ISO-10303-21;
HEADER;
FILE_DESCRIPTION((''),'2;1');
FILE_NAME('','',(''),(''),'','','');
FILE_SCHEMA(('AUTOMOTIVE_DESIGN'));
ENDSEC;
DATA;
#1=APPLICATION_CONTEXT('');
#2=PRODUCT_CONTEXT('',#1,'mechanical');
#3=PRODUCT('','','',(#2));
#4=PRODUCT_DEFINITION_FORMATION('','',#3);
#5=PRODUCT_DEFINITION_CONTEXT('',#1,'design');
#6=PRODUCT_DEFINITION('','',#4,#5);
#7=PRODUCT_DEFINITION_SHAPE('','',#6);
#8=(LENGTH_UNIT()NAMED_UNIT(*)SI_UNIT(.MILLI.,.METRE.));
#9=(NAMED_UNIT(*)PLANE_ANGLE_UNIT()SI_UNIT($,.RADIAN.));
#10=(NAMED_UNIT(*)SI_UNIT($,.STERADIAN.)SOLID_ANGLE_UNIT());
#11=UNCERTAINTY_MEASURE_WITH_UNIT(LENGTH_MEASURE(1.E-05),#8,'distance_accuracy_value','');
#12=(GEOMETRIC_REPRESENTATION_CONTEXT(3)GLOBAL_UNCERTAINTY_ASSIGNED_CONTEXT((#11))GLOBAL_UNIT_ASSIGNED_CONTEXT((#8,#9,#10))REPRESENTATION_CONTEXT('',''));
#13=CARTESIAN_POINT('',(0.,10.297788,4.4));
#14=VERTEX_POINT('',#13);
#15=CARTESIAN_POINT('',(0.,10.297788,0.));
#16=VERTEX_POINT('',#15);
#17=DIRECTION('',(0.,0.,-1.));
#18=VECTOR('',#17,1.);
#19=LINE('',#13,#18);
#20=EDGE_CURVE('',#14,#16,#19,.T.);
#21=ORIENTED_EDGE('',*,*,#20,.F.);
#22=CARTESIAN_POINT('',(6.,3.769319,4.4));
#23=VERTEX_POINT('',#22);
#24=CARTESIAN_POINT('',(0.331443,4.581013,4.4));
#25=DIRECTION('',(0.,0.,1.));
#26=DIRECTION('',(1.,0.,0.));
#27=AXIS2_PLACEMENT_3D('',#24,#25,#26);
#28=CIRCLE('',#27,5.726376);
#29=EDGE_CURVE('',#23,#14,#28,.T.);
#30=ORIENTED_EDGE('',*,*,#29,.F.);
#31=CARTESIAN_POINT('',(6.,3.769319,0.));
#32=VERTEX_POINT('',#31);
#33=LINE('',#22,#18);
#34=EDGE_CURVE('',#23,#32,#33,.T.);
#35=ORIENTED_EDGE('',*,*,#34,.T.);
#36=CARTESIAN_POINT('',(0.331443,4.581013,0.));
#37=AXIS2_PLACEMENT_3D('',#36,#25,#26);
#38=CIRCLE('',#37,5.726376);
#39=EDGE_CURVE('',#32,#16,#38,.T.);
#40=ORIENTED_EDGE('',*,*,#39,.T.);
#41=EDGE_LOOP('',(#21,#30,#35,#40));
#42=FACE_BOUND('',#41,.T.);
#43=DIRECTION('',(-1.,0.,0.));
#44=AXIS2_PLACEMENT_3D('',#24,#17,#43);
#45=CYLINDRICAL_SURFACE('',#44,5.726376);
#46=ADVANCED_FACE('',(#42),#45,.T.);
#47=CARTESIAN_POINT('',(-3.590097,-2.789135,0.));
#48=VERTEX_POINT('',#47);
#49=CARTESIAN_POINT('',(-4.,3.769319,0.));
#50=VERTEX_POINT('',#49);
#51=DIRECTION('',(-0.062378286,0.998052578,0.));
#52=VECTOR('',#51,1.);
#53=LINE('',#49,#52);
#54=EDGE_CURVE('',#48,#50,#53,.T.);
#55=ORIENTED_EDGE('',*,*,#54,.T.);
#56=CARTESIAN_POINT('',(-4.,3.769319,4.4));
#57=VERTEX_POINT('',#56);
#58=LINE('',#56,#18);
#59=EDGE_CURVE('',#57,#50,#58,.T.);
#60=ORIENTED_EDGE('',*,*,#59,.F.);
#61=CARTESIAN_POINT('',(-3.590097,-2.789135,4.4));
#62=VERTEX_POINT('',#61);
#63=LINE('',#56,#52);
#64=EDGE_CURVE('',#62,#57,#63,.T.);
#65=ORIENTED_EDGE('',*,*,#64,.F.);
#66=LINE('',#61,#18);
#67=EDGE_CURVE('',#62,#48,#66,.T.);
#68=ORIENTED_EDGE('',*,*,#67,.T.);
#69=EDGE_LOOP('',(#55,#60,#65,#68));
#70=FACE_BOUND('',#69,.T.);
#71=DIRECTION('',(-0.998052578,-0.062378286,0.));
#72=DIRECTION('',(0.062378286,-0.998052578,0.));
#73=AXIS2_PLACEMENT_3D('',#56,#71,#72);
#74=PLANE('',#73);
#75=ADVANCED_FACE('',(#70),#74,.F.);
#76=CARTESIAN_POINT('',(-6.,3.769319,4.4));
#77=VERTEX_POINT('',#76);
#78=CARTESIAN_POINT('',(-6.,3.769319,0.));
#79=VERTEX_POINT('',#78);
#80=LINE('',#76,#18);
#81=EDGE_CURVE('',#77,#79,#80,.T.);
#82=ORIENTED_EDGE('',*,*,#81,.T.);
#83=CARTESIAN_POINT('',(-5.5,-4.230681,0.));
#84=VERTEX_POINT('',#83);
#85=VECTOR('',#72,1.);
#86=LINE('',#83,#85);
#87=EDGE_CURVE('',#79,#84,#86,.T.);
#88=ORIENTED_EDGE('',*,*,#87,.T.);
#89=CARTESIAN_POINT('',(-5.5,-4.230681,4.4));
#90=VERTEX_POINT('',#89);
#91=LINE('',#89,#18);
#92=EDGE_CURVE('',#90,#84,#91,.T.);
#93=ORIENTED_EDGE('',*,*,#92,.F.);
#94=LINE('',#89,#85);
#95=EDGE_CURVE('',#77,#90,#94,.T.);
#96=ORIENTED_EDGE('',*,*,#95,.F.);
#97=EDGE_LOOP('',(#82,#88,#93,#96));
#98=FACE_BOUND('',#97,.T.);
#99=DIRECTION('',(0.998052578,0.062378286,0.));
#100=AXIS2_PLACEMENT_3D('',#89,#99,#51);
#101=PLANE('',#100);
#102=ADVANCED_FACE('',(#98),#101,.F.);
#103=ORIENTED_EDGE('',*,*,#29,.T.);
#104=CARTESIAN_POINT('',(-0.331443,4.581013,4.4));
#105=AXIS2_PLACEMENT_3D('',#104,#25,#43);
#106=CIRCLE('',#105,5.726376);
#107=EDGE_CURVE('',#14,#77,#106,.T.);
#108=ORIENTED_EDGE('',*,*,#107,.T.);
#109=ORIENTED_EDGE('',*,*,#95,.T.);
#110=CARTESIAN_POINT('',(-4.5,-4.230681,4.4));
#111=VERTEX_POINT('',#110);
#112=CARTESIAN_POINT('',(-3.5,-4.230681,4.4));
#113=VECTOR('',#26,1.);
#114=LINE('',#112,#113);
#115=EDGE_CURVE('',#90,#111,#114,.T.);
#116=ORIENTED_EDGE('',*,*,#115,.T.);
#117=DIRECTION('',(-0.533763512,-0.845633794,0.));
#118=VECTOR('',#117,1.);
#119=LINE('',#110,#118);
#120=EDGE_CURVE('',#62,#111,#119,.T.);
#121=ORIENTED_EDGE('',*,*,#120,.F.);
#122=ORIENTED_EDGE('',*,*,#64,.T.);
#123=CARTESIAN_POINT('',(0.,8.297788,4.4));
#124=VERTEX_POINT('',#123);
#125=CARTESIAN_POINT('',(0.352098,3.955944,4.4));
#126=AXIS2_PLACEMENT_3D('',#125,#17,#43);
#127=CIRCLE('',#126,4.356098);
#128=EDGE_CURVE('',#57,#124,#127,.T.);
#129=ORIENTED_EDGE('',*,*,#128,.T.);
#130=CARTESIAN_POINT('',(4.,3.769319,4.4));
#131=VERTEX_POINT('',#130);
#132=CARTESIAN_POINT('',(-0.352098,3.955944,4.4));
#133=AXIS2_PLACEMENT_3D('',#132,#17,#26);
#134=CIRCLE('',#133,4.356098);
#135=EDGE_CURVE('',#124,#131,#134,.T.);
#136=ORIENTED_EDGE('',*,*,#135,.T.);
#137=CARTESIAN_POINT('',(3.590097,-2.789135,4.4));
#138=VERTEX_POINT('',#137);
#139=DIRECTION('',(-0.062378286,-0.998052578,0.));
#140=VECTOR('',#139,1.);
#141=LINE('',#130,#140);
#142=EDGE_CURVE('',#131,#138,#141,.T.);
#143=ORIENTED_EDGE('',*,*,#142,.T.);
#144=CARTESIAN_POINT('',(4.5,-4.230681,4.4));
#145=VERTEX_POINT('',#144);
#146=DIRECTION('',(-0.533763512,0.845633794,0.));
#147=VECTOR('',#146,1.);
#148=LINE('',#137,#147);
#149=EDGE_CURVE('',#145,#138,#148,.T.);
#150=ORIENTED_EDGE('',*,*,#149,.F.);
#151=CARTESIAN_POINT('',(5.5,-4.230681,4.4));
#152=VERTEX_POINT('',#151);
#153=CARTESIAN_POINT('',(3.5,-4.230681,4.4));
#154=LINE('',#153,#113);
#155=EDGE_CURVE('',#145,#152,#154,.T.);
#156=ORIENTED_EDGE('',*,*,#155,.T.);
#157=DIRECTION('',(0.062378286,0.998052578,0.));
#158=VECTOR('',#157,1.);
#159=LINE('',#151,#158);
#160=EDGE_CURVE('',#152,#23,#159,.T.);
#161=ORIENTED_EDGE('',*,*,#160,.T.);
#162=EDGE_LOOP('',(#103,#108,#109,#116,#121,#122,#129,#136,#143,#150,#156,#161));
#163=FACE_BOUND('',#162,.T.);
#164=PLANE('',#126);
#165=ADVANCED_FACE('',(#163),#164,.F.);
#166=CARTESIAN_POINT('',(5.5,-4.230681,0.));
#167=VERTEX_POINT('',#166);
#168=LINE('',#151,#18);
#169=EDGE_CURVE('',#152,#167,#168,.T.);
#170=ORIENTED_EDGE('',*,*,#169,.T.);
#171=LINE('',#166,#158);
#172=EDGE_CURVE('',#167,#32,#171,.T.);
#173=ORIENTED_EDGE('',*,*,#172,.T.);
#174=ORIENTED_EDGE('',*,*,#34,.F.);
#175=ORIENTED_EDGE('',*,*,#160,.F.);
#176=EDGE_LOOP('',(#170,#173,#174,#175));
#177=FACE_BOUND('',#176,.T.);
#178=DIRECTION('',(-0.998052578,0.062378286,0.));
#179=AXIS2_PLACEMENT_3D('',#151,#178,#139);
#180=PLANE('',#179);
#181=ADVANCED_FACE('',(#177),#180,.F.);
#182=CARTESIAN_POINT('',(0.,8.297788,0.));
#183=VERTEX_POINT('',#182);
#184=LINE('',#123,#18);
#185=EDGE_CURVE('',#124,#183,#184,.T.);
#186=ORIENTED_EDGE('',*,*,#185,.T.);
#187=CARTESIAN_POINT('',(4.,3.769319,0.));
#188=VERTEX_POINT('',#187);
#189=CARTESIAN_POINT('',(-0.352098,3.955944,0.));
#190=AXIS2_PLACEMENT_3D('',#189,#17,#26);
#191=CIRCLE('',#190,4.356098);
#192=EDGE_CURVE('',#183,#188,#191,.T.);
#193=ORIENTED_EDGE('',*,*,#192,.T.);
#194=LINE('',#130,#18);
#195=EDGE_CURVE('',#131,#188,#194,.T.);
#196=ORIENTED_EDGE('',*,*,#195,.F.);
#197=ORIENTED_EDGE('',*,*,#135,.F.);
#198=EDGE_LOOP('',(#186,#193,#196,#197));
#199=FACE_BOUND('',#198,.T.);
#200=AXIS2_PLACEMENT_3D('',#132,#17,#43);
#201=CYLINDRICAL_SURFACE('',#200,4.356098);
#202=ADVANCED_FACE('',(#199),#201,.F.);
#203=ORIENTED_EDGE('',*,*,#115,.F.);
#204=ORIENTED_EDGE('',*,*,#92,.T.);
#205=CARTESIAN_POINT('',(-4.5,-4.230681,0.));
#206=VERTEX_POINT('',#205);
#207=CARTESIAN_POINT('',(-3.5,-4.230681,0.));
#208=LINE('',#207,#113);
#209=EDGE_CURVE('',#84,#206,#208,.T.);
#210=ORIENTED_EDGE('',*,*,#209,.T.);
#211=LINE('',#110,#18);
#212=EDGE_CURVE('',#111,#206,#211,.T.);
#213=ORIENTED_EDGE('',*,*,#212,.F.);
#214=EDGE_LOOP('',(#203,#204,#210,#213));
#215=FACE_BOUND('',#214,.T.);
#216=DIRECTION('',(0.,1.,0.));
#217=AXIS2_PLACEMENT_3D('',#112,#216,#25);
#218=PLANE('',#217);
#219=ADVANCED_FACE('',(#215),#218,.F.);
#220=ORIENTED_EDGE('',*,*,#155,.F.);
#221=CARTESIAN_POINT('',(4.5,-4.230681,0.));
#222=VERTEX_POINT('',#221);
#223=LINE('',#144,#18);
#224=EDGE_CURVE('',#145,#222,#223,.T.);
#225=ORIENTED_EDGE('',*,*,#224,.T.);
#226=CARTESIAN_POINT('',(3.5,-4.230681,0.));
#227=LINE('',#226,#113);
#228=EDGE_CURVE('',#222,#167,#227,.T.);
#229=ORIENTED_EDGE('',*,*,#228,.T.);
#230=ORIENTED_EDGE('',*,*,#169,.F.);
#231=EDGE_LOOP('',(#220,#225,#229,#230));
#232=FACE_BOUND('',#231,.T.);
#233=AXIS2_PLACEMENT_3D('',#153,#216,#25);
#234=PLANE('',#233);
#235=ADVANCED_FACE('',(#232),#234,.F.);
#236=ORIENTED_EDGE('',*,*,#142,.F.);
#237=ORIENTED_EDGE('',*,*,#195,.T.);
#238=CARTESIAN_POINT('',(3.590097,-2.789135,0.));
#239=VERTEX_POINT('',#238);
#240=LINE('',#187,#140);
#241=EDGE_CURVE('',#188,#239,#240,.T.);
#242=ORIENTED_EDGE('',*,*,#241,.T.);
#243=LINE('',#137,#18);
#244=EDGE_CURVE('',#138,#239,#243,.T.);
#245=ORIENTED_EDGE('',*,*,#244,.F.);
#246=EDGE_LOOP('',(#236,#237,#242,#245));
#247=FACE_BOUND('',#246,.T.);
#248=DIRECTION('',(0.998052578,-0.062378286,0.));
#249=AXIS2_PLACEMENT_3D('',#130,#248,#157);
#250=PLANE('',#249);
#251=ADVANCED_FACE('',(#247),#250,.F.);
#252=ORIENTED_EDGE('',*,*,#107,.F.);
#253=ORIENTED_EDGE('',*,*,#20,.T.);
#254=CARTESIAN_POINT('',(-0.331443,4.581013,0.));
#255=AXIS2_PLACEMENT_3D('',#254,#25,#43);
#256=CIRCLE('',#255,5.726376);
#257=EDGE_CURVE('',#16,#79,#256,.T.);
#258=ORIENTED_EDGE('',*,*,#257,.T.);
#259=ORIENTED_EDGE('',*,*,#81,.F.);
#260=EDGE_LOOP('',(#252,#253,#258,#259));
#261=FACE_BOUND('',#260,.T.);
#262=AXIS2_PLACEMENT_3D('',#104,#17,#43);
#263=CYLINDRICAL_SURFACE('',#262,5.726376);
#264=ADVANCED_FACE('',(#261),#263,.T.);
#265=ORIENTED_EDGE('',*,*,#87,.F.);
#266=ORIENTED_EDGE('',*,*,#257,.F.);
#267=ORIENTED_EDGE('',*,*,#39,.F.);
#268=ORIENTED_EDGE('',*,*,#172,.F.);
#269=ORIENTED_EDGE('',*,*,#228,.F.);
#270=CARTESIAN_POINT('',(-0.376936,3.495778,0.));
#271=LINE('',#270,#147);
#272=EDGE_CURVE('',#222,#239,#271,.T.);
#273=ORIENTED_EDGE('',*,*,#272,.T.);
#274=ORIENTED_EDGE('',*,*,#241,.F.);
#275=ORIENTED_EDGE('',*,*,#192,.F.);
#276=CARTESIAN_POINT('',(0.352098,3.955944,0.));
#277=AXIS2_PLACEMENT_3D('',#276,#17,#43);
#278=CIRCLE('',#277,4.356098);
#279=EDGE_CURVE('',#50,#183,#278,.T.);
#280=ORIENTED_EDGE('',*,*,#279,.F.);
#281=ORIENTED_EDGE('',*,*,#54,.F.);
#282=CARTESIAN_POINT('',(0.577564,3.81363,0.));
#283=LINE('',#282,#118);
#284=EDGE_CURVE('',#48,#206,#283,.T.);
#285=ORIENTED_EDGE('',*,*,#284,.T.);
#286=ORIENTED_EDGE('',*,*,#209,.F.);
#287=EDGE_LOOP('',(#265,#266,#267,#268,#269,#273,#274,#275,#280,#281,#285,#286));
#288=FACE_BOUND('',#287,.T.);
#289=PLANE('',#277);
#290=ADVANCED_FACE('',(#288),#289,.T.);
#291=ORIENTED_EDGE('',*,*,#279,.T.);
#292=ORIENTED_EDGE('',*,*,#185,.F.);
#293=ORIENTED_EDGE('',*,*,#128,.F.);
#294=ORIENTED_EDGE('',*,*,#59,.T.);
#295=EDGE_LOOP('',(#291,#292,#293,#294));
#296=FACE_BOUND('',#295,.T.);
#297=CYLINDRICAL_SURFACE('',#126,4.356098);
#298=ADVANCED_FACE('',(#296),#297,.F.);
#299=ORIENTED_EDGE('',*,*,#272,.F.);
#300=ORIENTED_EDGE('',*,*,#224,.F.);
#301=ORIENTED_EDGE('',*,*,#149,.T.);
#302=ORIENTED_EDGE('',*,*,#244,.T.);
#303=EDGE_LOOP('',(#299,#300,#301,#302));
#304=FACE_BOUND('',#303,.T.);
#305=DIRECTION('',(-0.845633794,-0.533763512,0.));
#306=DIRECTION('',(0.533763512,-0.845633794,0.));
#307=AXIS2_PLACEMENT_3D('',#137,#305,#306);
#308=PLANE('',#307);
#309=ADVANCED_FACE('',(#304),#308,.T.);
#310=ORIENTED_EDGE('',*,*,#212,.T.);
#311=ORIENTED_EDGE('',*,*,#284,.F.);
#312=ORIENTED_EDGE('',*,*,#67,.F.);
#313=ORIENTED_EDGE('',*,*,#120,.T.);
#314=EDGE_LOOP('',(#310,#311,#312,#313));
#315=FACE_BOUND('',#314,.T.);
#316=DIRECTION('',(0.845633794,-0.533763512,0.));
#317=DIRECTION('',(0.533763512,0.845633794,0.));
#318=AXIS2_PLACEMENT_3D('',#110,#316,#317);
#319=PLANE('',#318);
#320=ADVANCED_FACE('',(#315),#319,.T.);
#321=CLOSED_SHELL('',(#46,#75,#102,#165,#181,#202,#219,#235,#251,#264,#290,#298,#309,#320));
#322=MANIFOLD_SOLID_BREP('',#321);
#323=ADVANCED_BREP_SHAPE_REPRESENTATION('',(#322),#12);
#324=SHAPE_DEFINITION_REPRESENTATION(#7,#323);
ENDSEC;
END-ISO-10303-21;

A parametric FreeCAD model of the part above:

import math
import FreeCAD as App
import Part
import Sketcher
Q = App.Units.Quantity

doc = App.newDocument("Part")
params = doc.addObject("Spreadsheet::Sheet", "Params")
for row, (alias, value) in enumerate([
    ("sketch1_width", "2 mm"),
    ("pad1_length", "4.4 mm"),
    ("sketch2_width", "1 mm"),
], start=1):
    params.set(f"A{row}", alias)
    params.set(f"B{row}", "=" + value)
    params.setAlias(f"B{row}", alias)

body = doc.addObject("PartDesign::Body", "Body")

# Sketch on XY plane
sketch1 = body.newObject("Sketcher::SketchObject", "Sketch")
sketch1.AttachmentSupport = (doc.getObject("XY_Plane"), [""])
sketch1.MapMode = "FlatFace"
sketch1.addGeometry(Part.LineSegment(App.Vector(-3.5, -4.230681, 0), App.Vector(-4, 3.769319, 0)), False)
sketch1.addGeometry(Part.ArcOfCircle(Part.Circle(App.Vector(0.352098, 3.955944, 0), App.Vector(0, 0, 1), 4.356098), math.radians(94.63621), math.radians(182.455428)), False)
sketch1.addGeometry(Part.ArcOfCircle(Part.Circle(App.Vector(-0.352098, 3.955944, 0), App.Vector(0, 0, 1), 4.356098), math.radians(-2.455428), math.radians(85.36379)), False)
sketch1.addGeometry(Part.LineSegment(App.Vector(4, 3.769319, 0), App.Vector(3.5, -4.230681, 0)), False)
sketch1.addGeometry(Part.LineSegment(App.Vector(3.5, -4.230681, 0), App.Vector(5.5, -4.230681, 0)), False)
sketch1.addGeometry(Part.LineSegment(App.Vector(5.5, -4.230681, 0), App.Vector(6, 3.769319, 0)), False)
sketch1.addGeometry(Part.ArcOfCircle(Part.Circle(App.Vector(0.331443, 4.581013, 0), App.Vector(0, 0, 1), 5.726376), math.radians(-8.148922), math.radians(93.318142)), False)
sketch1.addGeometry(Part.ArcOfCircle(Part.Circle(App.Vector(-0.331443, 4.581013, 0), App.Vector(0, 0, 1), 5.726376), math.radians(86.681858), math.radians(188.148922)), False)
sketch1.addGeometry(Part.LineSegment(App.Vector(-6, 3.769319, 0), App.Vector(-5.5, -4.230681, 0)), False)
sketch1.addGeometry(Part.LineSegment(App.Vector(-5.5, -4.230681, 0), App.Vector(-3.5, -4.230681, 0)), False)
sketch1.addConstraint(Sketcher.Constraint("Coincident", 0, 2, 1, 2))
sketch1.addConstraint(Sketcher.Constraint("Coincident", 1, 1, 2, 2))
sketch1.addConstraint(Sketcher.Constraint("Coincident", 2, 1, 3, 1))
sketch1.addConstraint(Sketcher.Constraint("Coincident", 3, 2, 4, 1))
sketch1.addConstraint(Sketcher.Constraint("Coincident", 4, 2, 5, 1))
sketch1.addConstraint(Sketcher.Constraint("Coincident", 5, 2, 6, 1))
sketch1.addConstraint(Sketcher.Constraint("Coincident", 6, 2, 7, 1))
sketch1.addConstraint(Sketcher.Constraint("Coincident", 7, 2, 8, 1))
sketch1.addConstraint(Sketcher.Constraint("Coincident", 8, 2, 9, 1))
sketch1.addConstraint(Sketcher.Constraint("Coincident", 9, 2, 0, 1))
sketch1.addConstraint(Sketcher.Constraint("Horizontal", 4))
sketch1.addConstraint(Sketcher.Constraint("Horizontal", 9))
sketch1.addConstraint(Sketcher.Constraint("Equal", 1, 2))
sketch1.addConstraint(Sketcher.Constraint("Equal", 6, 7))
sketch1.addConstraint(Sketcher.Constraint("Symmetric", 1, 3, 2, 3, -2))
sketch1.addConstraint(Sketcher.Constraint("Symmetric", 6, 3, 7, 3, -2))
sketch1.addConstraint(Sketcher.Constraint("Symmetric", 4, 2, 8, 2, -2))
sketch1.addConstraint(Sketcher.Constraint("Parallel", 3, 5))
sketch1.addConstraint(Sketcher.Constraint("Parallel", 0, 8))
sketch1.addConstraint(Sketcher.Constraint("Horizontal", 0, 2, 2, 1))
sketch1.addConstraint(Sketcher.Constraint("Horizontal", 2, 1, 5, 2))
sketch1.addConstraint(Sketcher.Constraint("Horizontal", 5, 2, 7, 2))
sketch1.addConstraint(Sketcher.Constraint("DistanceX", 4, 1, 4, 2, Q("2 mm")))
sketch1.addConstraint(Sketcher.Constraint("DistanceX", 0, 2, -1, 1, Q("4 mm")))
sketch1.addConstraint(Sketcher.Constraint("DistanceY", 3, 2, 2, 1, Q("8 mm")))
sketch1.addConstraint(Sketcher.Constraint("DistanceY", 1, 1, 6, 2, Q("2 mm")))
sketch1.addConstraint(Sketcher.Constraint("DistanceX", 8, 2, 3, 2, Q("9 mm")))
sketch1.addConstraint(Sketcher.Constraint("Radius", 1, Q("4.356098 mm")))
sketch1.addConstraint(Sketcher.Constraint("Radius", 6, Q("5.726376 mm")))
sketch1.addConstraint(Sketcher.Constraint("DistanceX", -1, 1, 1, 3, Q("0.352098 mm")))
sketch1.addConstraint(Sketcher.Constraint("DistanceY", -1, 1, 0, 2, Q("3.769319 mm")))
sketch1.setExpression("Constraints[22]", "Params.sketch1_width")
pad1 = body.newObject("PartDesign::Pad", "Pad")
pad1.Profile = sketch1
pad1.setExpression("Length", "Params.pad1_length")

# Sketch on XY plane
sketch2 = body.newObject("Sketcher::SketchObject", "Sketch001")
sketch2.AttachmentSupport = (doc.getObject("XY_Plane"), [""])
sketch2.MapMode = "FlatFace"
sketch2.addGeometry(Part.LineSegment(App.Vector(-4.5, -4.230681, 0), App.Vector(-3.5, -4.230681, 0)), False)
sketch2.addGeometry(Part.LineSegment(App.Vector(-3.5, -4.230681, 0), App.Vector(-3.590097, -2.789135, 0)), False)
sketch2.addGeometry(Part.LineSegment(App.Vector(-3.590097, -2.789135, 0), App.Vector(-4.5, -4.230681, 0)), False)
sketch2.addGeometry(Part.LineSegment(App.Vector(3.590097, -2.789135, 0), App.Vector(3.5, -4.230681, 0)), False)
sketch2.addGeometry(Part.LineSegment(App.Vector(3.5, -4.230681, 0), App.Vector(4.5, -4.230681, 0)), False)
sketch2.addGeometry(Part.LineSegment(App.Vector(4.5, -4.230681, 0), App.Vector(3.590097, -2.789135, 0)), False)
sketch2.addConstraint(Sketcher.Constraint("Coincident", 0, 2, 1, 1))
sketch2.addConstraint(Sketcher.Constraint("Coincident", 1, 2, 2, 1))
sketch2.addConstraint(Sketcher.Constraint("Coincident", 2, 2, 0, 1))
sketch2.addConstraint(Sketcher.Constraint("Coincident", 3, 2, 4, 1))
sketch2.addConstraint(Sketcher.Constraint("Coincident", 4, 2, 5, 1))
sketch2.addConstraint(Sketcher.Constraint("Coincident", 5, 2, 3, 1))
sketch2.addConstraint(Sketcher.Constraint("Horizontal", 0))
sketch2.addConstraint(Sketcher.Constraint("Horizontal", 4))
sketch2.addConstraint(Sketcher.Constraint("Symmetric", 0, 2, 3, 2, -2))
sketch2.addConstraint(Sketcher.Constraint("Symmetric", 1, 2, 5, 2, -2))
sketch2.addConstraint(Sketcher.Constraint("Equal", 0, 4))
sketch2.addConstraint(Sketcher.Constraint("DistanceX", 0, 1, 0, 2, Q("1 mm")))
sketch2.addConstraint(Sketcher.Constraint("DistanceX", 0, 2, 3, 2, Q("7 mm")))
sketch2.addConstraint(Sketcher.Constraint("Distance", 1, Q("1.444359 mm")))
sketch2.addConstraint(Sketcher.Constraint("DistanceY", 0, 2, -1, 1, Q("4.230681 mm")))
sketch2.addConstraint(Sketcher.Constraint("Distance", 2, Q("1.704694 mm")))
sketch2.setExpression("Constraints[11]", "Params.sketch2_width")
pocket1 = body.newObject("PartDesign::Pocket", "Pocket")
pocket1.Profile = sketch2
pocket1.Type = "ThroughAll"
pocket1.Midplane = True

doc.recompute()
